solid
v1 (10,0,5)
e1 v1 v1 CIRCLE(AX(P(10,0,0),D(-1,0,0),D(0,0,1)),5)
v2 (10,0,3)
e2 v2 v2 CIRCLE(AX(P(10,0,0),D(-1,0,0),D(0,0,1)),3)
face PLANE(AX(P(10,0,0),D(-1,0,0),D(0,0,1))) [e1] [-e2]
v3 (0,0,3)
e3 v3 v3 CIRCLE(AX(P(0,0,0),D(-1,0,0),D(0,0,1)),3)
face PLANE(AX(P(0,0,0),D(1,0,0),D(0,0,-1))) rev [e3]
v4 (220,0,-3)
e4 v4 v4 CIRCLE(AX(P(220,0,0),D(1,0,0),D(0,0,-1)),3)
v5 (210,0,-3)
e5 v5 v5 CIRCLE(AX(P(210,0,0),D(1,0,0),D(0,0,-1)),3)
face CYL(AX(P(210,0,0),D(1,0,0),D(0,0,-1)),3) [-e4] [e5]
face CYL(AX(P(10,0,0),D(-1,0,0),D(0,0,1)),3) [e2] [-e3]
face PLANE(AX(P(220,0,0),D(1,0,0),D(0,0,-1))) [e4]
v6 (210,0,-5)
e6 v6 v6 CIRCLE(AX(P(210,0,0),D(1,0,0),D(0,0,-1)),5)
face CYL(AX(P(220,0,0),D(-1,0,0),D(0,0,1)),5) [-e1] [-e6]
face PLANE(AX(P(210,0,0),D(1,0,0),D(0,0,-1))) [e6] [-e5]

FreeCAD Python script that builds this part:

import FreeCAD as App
import Part
import Sketcher
Q = App.Units.Quantity

doc = App.newDocument("Part")
body = doc.addObject("PartDesign::Body", "Body")

# Sketch on YZ plane
sketch1 = body.newObject("Sketcher::SketchObject", "Sketch")
sketch1.AttachmentSupport = (doc.getObject("YZ_Plane"), [""])
sketch1.MapMode = "FlatFace"
sketch1.addGeometry(Part.Circle(App.Vector(0, 0, 0), App.Vector(0, 0, 1), 5), False)
sketch1.addConstraint(Sketcher.Constraint("Coincident", 0, 3, -1, 1))
sketch1.addConstraint(Sketcher.Constraint("Diameter", 0, Q("10 mm")))
pad1 = body.newObject("PartDesign::Pad", "Pad")
pad1.Profile = sketch1
pad1.Length = 220

# Sketch on YZ plane
sketch2 = body.newObject("Sketcher::SketchObject", "Sketch001")
sketch2.AttachmentSupport = (doc.getObject("YZ_Plane"), [""])
sketch2.MapMode = "FlatFace"
sketch2.addGeometry(Part.Circle(App.Vector(0, 0, 0), App.Vector(0, 0, 1), 5), False)
sketch2.addConstraint(Sketcher.Constraint("Coincident", 0, 3, -1, 1))
sketch2.addConstraint(Sketcher.Constraint("Diameter", 0, Q("10 mm")))
pad2 = body.newObject("PartDesign::Pad", "Pad001")
pad2.Profile = sketch2
pad2.Length = 10

# Sketch on YZ plane
sketch3 = body.newObject("Sketcher::SketchObject", "Sketch002")
sketch3.AttachmentSupport = (doc.getObject("YZ_Plane"), [""])
sketch3.MapMode = "FlatFace"
sketch3.AttachmentOffset = App.Placement(App.Vector(0, 0, 210), App.Rotation())
sketch3.addGeometry(Part.Circle(App.Vector(0, 0, 0), App.Vector(0, 0, 1), 5), False)
sketch3.addConstraint(Sketcher.Constraint("Coincident", 0, 3, -1, 1))
sketch3.addConstraint(Sketcher.Constraint("Diameter", 0, Q("10 mm")))
pad3 = body.newObject("PartDesign::Pad", "Pad002")
pad3.Profile = sketch3
pad3.Length = 10

# Sketch on YZ plane
sketch4 = body.newObject("Sketcher::SketchObject", "Sketch003")
sketch4.AttachmentSupport = (doc.getObject("YZ_Plane"), [""])
sketch4.MapMode = "FlatFace"
sketch4.addGeometry(Part.LineSegment(App.Vector(28.045, -28.045, 0), App.Vector(-28.045, -28.045, 0)), False)
sketch4.addGeometry(Part.LineSegment(App.Vector(-28.045, -28.045, 0), App.Vector(-28.045, 28.045, 0)), False)
sketch4.addGeometry(Part.LineSegment(App.Vector(-28.045, 28.045, 0), App.Vector(28.045, 28.045, 0)), False)
sketch4.addGeometry(Part.LineSegment(App.Vector(28.045, 28.045, 0), App.Vector(28.045, -28.045, 0)), False)
sketch4.addGeometry(Part.Circle(App.Vector(0, 0, 0), App.Vector(0, 0, 1), 3), False)
sketch4.addConstraint(Sketcher.Constraint("Coincident", 0, 2, 1, 1))
sketch4.addConstraint(Sketcher.Constraint("Coincident", 1, 2, 2, 1))
sketch4.addConstraint(Sketcher.Constraint("Coincident", 2, 2, 3, 1))
sketch4.addConstraint(Sketcher.Constraint("Coincident", 3, 2, 0, 1))
sketch4.addConstraint(Sketcher.Constraint("Horizontal", 0))
sketch4.addConstraint(Sketcher.Constraint("Vertical", 1))
sketch4.addConstraint(Sketcher.Constraint("Horizontal", 2))
sketch4.addConstraint(Sketcher.Constraint("Vertical", 3))
sketch4.addConstraint(Sketcher.Constraint("Coincident", 4, 3, -1, 1))
sketch4.addConstraint(Sketcher.Constraint("Symmetric", 0, 2, 2, 2, -1, 1))
sketch4.addConstraint(Sketcher.Constraint("Equal", 2, 1))
sketch4.addConstraint(Sketcher.Constraint("Diameter", 4, Q("6 mm")))
sketch4.addConstraint(Sketcher.Constraint("DistanceX", 0, 2, 0, 1, Q("56.09 mm")))
pocket1 = body.newObject("PartDesign::Pocket", "Pocket")
pocket1.Profile = sketch4
pocket1.Length = 10
pocket1.Reversed = True

# Sketch on YZ plane
sketch5 = body.newObject("Sketcher::SketchObject", "Sketch004")
sketch5.AttachmentSupport = (doc.getObject("YZ_Plane"), [""])
sketch5.MapMode = "FlatFace"
sketch5.AttachmentOffset = App.Placement(App.Vector(0, 0, 220), App.Rotation())
sketch5.addGeometry(Part.LineSegment(App.Vector(28.045, 28.045, 0), App.Vector(-28.045, 28.045, 0)), False)
sketch5.addGeometry(Part.LineSegment(App.Vector(-28.045, 28.045, 0), App.Vector(-28.045, -28.045, 0)), False)
sketch5.addGeometry(Part.LineSegment(App.Vector(-28.045, -28.045, 0), App.Vector(28.045, -28.045, 0)), False)
sketch5.addGeometry(Part.LineSegment(App.Vector(28.045, -28.045, 0), App.Vector(28.045, 28.045, 0)), False)
sketch5.addGeometry(Part.Circle(App.Vector(0, 0, 0), App.Vector(0, 0, 1), 3), False)
sketch5.addConstraint(Sketcher.Constraint("Coincident", 0, 2, 1, 1))
sketch5.addConstraint(Sketcher.Constraint("Coincident", 1, 2, 2, 1))
sketch5.addConstraint(Sketcher.Constraint("Coincident", 2, 2, 3, 1))
sketch5.addConstraint(Sketcher.Constraint("Coincident", 3, 2, 0, 1))
sketch5.addConstraint(Sketcher.Constraint("Horizontal", 0))
sketch5.addConstraint(Sketcher.Constraint("Vertical", 1))
sketch5.addConstraint(Sketcher.Constraint("Horizontal", 2))
sketch5.addConstraint(Sketcher.Constraint("Vertical", 3))
sketch5.addConstraint(Sketcher.Constraint("Coincident", 4, 3, -1, 1))
sketch5.addConstraint(Sketcher.Constraint("Symmetric", 0, 2, 2, 2, -1, 1))
sketch5.addConstraint(Sketcher.Constraint("Equal", 2, 1))
sketch5.addConstraint(Sketcher.Constraint("Diameter", 4, Q("6 mm")))
sketch5.addConstraint(Sketcher.Constraint("DistanceX", 0, 2, 0, 1, Q("56.09 mm")))
pocket2 = body.newObject("PartDesign::Pocket", "Pocket001")
pocket2.Profile = sketch5
pocket2.Length = 10

doc.recompute()
